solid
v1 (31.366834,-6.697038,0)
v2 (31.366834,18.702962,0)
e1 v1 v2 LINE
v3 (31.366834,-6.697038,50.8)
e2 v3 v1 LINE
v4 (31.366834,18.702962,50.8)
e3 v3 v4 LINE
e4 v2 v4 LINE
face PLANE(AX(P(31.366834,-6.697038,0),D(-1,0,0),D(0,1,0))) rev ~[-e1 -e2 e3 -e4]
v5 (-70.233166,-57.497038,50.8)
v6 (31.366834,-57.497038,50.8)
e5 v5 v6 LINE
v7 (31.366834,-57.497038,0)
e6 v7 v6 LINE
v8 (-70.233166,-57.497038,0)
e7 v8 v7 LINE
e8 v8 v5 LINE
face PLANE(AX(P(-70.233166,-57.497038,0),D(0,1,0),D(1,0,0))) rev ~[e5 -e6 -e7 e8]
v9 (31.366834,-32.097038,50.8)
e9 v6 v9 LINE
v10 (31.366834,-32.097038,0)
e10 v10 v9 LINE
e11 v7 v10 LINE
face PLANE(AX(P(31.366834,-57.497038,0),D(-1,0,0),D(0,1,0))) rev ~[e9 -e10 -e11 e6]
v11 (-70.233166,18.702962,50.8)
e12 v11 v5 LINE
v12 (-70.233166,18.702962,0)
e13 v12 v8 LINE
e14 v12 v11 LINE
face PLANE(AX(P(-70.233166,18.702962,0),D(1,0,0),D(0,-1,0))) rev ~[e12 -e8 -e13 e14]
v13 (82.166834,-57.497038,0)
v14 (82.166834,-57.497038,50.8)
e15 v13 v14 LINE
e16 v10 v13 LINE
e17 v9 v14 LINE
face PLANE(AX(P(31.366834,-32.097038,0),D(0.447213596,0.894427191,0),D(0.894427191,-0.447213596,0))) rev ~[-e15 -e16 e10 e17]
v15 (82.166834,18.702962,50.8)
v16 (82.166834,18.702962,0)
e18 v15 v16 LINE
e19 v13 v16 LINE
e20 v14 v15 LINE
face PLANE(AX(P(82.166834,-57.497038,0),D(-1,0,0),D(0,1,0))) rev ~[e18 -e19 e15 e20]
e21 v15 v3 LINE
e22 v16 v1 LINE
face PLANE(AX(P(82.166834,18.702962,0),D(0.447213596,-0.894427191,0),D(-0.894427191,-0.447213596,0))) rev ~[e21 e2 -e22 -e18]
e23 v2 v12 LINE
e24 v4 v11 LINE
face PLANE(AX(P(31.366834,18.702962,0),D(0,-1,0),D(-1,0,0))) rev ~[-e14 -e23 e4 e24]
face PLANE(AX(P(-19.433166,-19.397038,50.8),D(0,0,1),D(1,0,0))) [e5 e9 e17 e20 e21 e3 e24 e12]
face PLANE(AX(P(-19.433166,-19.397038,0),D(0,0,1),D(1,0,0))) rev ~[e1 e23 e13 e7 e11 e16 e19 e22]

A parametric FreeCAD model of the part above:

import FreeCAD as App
import Part
import Sketcher
from FreeCAD import Vector
Q = App.Units.Quantity

doc = App.newDocument("Part")
params = doc.addObject("Spreadsheet::Sheet", "Params")
for row, (alias, value) in enumerate([
    ("sketch1_height", "1 in"),
    ("sketch1_height2", "3 in"),
    ("pad1_length", "1 in"),
    ("sketch2_width", "4 in"),
    ("sketch2_height", "3 in"),
    ("sketch2_height2", "1 in"),
    ("pad2_length", "2 in"),
], start=1):
    params.set(f"A{row}", alias)
    params.set(f"B{row}", "=" + value)
    params.setAlias(f"B{row}", alias)

body = doc.addObject("PartDesign::Body", "Body")

# Sketch on XY plane
sketch1 = doc.addObject("Sketcher::SketchObject", "Sketch")
body.addObject(sketch1)
sketch1.AttachmentSupport = (doc.XY_Plane, [""])
sketch1.MapMode = "FlatFace"
sketch1.addGeometry([
    Part.LineSegment(Vector(82.166834, 18.702962, 0), Vector(31.366834, -6.697038, 0)),
    Part.LineSegment(Vector(31.366834, -6.697038, 0), Vector(31.366834, -32.097038, 0)),
    Part.LineSegment(Vector(31.366834, -32.097038, 0), Vector(82.166834, -57.497038, 0)),
    Part.LineSegment(Vector(82.166834, -57.497038, 0), Vector(82.166834, 18.702962, 0)),
], False)
sketch1.addConstraint([
    Sketcher.Constraint("Coincident", 0, 2, 1, 1),
    Sketcher.Constraint("Coincident", 1, 2, 2, 1),
    Sketcher.Constraint("Coincident", 2, 2, 3, 1),
    Sketcher.Constraint("Coincident", 3, 2, 0, 1),
    Sketcher.Constraint("Vertical", 1),
    Sketcher.Constraint("Vertical", 3),
    Sketcher.Constraint("Equal", 0, 2),
    Sketcher.Constraint("DistanceY", 1, 2, 1, 1, Q("1 in")),
    Sketcher.Constraint("DistanceY", 3, 1, 3, 2, Q("3 in")),
    Sketcher.Constraint("DistanceX", 1, 2, 2, 2, Q("2 in")),
    Sketcher.Constraint("DistanceY", 2, 2, -1, 1, 57.497038),
    Sketcher.Constraint("DistanceX", -1, 1, 0, 2, 31.366834),
])
sketch1.setExpression("Constraints[7]", "Params.sketch1_height")
sketch1.setExpression("Constraints[8]", "Params.sketch1_height2")
pad1 = doc.addObject("PartDesign::Pad", "Pad")
body.addObject(pad1)
pad1.Profile = sketch1
pad1.setExpression("Length", "Params.pad1_length")

# Sketch on XY plane
sketch2 = doc.addObject("Sketcher::SketchObject", "Sketch001")
body.addObject(sketch2)
sketch2.AttachmentSupport = (doc.XY_Plane, [""])
sketch2.MapMode = "FlatFace"
sketch2.addGeometry([
    Part.LineSegment(Vector(31.366834, 18.702962, 0), Vector(-70.233166, 18.702962, 0)),  # 0
    Part.LineSegment(Vector(-70.233166, 18.702962, 0), Vector(-70.233166, -57.497038, 0)),  # 1
    Part.LineSegment(Vector(-70.233166, -57.497038, 0), Vector(31.366834, -57.497038, 0)),  # 2
    Part.LineSegment(Vector(31.366834, -57.497038, 0), Vector(31.366834, -32.097038, 0)),  # 3
    Part.LineSegment(Vector(31.366834, -32.097038, 0), Vector(82.166834, -57.497038, 0)),  # 4
    Part.LineSegment(Vector(82.166834, -57.497038, 0), Vector(82.166834, 18.702962, 0)),  # 5
    Part.LineSegment(Vector(82.166834, 18.702962, 0), Vector(31.366834, -6.697038, 0)),  # 6
    Part.LineSegment(Vector(31.366834, -6.697038, 0), Vector(31.366834, 18.702962, 0)),  # 7
], False)
sketch2.addConstraint([
    Sketcher.Constraint("Coincident", 0, 2, 1, 1),
    Sketcher.Constraint("Coincident", 1, 2, 2, 1),
    Sketcher.Constraint("Coincident", 2, 2, 3, 1),
    Sketcher.Constraint("Coincident", 3, 2, 4, 1),
    Sketcher.Constraint("Coincident", 4, 2, 5, 1),
    Sketcher.Constraint("Coincident", 5, 2, 6, 1),
    Sketcher.Constraint("Coincident", 6, 2, 7, 1),
    Sketcher.Constraint("Coincident", 7, 2, 0, 1),
    Sketcher.Constraint("Horizontal", 0),
    Sketcher.Constraint("Vertical", 1),
    Sketcher.Constraint("Horizontal", 2),
    Sketcher.Constraint("Vertical", 3),
    Sketcher.Constraint("Vertical", 5),
    Sketcher.Constraint("Vertical", 7),
    Sketcher.Constraint("Horizontal", 2, 2, 4, 2),
    Sketcher.Constraint("Horizontal", 0, 2, 5, 2),
    Sketcher.Constraint("Vertical", 3, 2, 6, 2),
    Sketcher.Constraint("Equal", 3, 7),
    Sketcher.Constraint("DistanceX", 0, 2, 0, 1, Q("4 in")),
    Sketcher.Constraint("DistanceY", 1, 2, 1, 1, Q("3 in")),
    Sketcher.Constraint("DistanceY", 3, 1, 3, 2, Q("1 in")),
    Sketcher.Constraint("DistanceX", 2, 2, 4, 2, Q("2 in")),
    Sketcher.Constraint("DistanceY", -1, 1, 0, 2, 18.702962),
    Sketcher.Constraint("DistanceX", 0, 2, -1, 1, 70.233166),
])
sketch2.setExpression("Constraints[18]", "Params.sketch2_width")
sketch2.setExpression("Constraints[19]", "Params.sketch2_height")
sketch2.setExpression("Constraints[20]", "Params.sketch2_height2")
pad2 = doc.addObject("PartDesign::Pad", "Pad001")
body.addObject(pad2)
pad2.Profile = sketch2
pad2.setExpression("Length", "Params.pad2_length")

doc.recompute()
